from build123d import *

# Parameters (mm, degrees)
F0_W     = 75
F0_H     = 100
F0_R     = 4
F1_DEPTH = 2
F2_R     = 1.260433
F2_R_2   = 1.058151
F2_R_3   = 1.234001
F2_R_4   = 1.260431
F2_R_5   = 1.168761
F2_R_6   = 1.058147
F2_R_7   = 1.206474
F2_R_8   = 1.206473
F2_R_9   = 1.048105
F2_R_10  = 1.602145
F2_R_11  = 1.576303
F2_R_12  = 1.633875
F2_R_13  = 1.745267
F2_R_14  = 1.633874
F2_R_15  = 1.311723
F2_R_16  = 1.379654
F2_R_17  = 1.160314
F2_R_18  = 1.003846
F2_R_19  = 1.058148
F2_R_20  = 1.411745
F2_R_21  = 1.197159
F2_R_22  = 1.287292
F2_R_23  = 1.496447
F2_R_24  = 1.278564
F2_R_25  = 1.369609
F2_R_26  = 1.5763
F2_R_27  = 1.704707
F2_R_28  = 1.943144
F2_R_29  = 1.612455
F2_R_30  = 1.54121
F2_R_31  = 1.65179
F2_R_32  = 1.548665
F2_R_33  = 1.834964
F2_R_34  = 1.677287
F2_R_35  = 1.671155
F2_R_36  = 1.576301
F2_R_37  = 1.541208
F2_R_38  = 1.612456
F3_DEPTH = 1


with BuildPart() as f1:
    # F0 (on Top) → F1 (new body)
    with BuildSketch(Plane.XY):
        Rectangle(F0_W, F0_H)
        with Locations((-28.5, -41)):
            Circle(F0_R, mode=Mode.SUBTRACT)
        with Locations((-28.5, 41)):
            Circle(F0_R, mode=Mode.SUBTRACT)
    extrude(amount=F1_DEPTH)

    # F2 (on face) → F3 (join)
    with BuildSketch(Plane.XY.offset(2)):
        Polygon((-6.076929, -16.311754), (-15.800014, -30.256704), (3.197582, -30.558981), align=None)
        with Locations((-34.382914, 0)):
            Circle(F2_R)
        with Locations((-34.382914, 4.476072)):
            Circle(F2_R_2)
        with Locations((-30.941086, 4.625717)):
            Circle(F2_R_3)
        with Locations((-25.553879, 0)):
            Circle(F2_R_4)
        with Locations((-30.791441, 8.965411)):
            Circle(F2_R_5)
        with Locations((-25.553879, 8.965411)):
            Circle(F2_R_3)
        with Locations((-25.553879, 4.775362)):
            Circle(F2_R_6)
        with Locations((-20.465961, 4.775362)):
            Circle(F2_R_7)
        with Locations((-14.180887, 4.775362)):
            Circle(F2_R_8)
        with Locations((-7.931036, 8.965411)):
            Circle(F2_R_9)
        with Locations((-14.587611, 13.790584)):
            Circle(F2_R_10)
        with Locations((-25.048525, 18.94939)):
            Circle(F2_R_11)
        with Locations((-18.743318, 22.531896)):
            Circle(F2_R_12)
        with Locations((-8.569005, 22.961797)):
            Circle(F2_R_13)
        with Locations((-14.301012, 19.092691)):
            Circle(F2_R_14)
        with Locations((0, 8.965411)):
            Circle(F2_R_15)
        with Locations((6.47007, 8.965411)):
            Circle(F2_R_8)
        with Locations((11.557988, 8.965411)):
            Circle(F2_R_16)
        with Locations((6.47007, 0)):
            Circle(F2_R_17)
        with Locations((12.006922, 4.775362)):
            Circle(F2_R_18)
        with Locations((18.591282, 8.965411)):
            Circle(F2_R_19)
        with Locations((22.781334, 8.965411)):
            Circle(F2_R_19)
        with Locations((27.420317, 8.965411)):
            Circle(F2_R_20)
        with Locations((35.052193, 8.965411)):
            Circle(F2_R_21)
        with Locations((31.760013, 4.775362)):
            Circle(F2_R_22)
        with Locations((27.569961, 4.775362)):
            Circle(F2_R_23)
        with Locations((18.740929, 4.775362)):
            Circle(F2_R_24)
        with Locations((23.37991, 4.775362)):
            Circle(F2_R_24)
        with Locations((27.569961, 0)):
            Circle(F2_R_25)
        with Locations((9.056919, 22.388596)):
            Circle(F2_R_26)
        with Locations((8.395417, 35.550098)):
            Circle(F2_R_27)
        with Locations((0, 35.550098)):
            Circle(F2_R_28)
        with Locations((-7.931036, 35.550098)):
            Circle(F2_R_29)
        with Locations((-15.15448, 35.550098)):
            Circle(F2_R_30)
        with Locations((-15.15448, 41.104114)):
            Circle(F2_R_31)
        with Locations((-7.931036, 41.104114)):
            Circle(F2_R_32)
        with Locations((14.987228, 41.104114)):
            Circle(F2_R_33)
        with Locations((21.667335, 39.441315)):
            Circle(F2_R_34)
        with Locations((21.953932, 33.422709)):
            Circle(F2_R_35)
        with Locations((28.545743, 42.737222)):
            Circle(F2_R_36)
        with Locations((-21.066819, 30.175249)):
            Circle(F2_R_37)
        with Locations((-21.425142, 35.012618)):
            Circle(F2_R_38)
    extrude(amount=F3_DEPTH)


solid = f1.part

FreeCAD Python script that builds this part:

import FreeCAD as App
import Part
import Sketcher

V = App.Vector
Q = App.Units.Quantity

doc = App.newDocument("Part")
body = doc.addObject("PartDesign::Body", "Body")

# Sketch on XY plane
sketch1 = doc.addObject("Sketcher::SketchObject", "Sketch")
body.addObject(sketch1)
sketch1.AttachmentSupport = (doc.XY_Plane, [""])
sketch1.MapMode = "FlatFace"
sketch1.addGeometry([
    Part.LineSegment(V(-37.5, 50, 0), V(-37.5, -50, 0)),  # 0
    Part.LineSegment(V(-37.5, -50, 0), V(37.5, -50, 0)),  # 1
    Part.LineSegment(V(37.5, -50, 0), V(37.5, 50, 0)),  # 2
    Part.LineSegment(V(37.5, 50, 0), V(-37.5, 50, 0)),  # 3
    Part.Circle(V(-28.5, -41, 0), V(0, 0, 1), 4),  # 4
    Part.Circle(V(-28.5, 41, 0), V(0, 0, 1), 4),  # 5
], False)
sketch1.addConstraint([
    Sketcher.Constraint("Coincident", 0, 2, 1, 1),
    Sketcher.Constraint("Coincident", 1, 2, 2, 1),
    Sketcher.Constraint("Coincident", 2, 2, 3, 1),
    Sketcher.Constraint("Coincident", 3, 2, 0, 1),
    Sketcher.Constraint("Vertical", 0),
    Sketcher.Constraint("Horizontal", 1),
    Sketcher.Constraint("Vertical", 2),
    Sketcher.Constraint("Horizontal", 3),
    Sketcher.Constraint("Equal", 4, 5),
    Sketcher.Constraint("Symmetric", 0, 2, 2, 2, -1, 1),
    Sketcher.Constraint("Symmetric", 4, 3, 5, 3, -1),
    Sketcher.Constraint("Diameter", 4, Q("8 mm")),
    Sketcher.Constraint("DistanceX", 1, 1, 1, 2, Q("75 mm")),
    Sketcher.Constraint("DistanceY", 0, 2, 0, 1, Q("100 mm")),
    Sketcher.Constraint("DistanceY", 4, 3, -1, 1, Q("41 mm")),
    Sketcher.Constraint("DistanceX", 0, 2, 4, 3, Q("9 mm")),
])
pad1 = doc.addObject("PartDesign::Pad", "Pad")
body.addObject(pad1)
pad1.Profile = sketch1
pad1.Length = 2

# Sketch on XY plane
sketch2 = doc.addObject("Sketcher::SketchObject", "Sketch001")
body.addObject(sketch2)
sketch2.AttachmentSupport = (doc.XY_Plane, [""])
sketch2.MapMode = "FlatFace"
sketch2.AttachmentOffset = App.Placement(V(0, 0, 2), App.Rotation())
sketch2.addGeometry([
    Part.LineSegment(V(-6.1, -16.3, 0), V(-15.8, -30.3, 0)),  # 0
    Part.LineSegment(V(-15.8, -30.3, 0), V(3.2, -30.6, 0)),  # 1
    Part.LineSegment(V(3.2, -30.6, 0), V(-6.1, -16.3, 0)),  # 2
    Part.Circle(V(-34.4, 0, 0), V(0, 0, 1), 1.3),  # 3
    Part.Circle(V(-34.4, 4.5, 0), V(0, 0, 1), 1.1),  # 4
    Part.Circle(V(-30.9, 4.6, 0), V(0, 0, 1), 1.2),  # 5
    Part.Circle(V(-25.6, 0, 0), V(0, 0, 1), 1.3),  # 6
    Part.Circle(V(-30.8, 9, 0), V(0, 0, 1), 1.2),  # 7
    Part.Circle(V(-25.6, 9, 0), V(0, 0, 1), 1.2),  # 8
    Part.Circle(V(-25.6, 4.8, 0), V(0, 0, 1), 1.1),  # 9
    Part.Circle(V(-20.5, 4.8, 0), V(0, 0, 1), 1.2),  # 10
    Part.Circle(V(-14.2, 4.8, 0), V(0, 0, 1), 1.2),  # 11
    Part.Circle(V(-7.9, 9, 0), V(0, 0, 1), 1),  # 12
    Part.Circle(V(-14.6, 13.8, 0), V(0, 0, 1), 1.6),  # 13
    Part.Circle(V(-25, 18.9, 0), V(0, 0, 1), 1.6),  # 14
    Part.Circle(V(-18.7, 22.5, 0), V(0, 0, 1), 1.6),  # 15
    Part.Circle(V(-8.6, 23, 0), V(0, 0, 1), 1.7),  # 16
    Part.Circle(V(-14.3, 19.1, 0), V(0, 0, 1), 1.6),  # 17
    Part.Circle(V(0, 9, 0), V(0, 0, 1), 1.3),  # 18
    Part.Circle(V(6.5, 9, 0), V(0, 0, 1), 1.2),  # 19
    Part.Circle(V(11.6, 9, 0), V(0, 0, 1), 1.4),  # 20
    Part.Circle(V(6.5, 0, 0), V(0, 0, 1), 1.2),  # 21
    Part.Circle(V(12, 4.8, 0), V(0, 0, 1), 1),  # 22
    Part.Circle(V(18.6, 9, 0), V(0, 0, 1), 1.1),  # 23
    Part.Circle(V(22.8, 9, 0), V(0, 0, 1), 1.1),  # 24
    Part.Circle(V(27.4, 9, 0), V(0, 0, 1), 1.4),  # 25
    Part.Circle(V(35.1, 9, 0), V(0, 0, 1), 1.2),  # 26
    Part.Circle(V(31.8, 4.8, 0), V(0, 0, 1), 1.3),  # 27
    Part.Circle(V(27.6, 4.8, 0), V(0, 0, 1), 1.5),  # 28
    Part.Circle(V(18.7, 4.8, 0), V(0, 0, 1), 1.3),  # 29
    Part.Circle(V(23.4, 4.8, 0), V(0, 0, 1), 1.3),  # 30
    Part.Circle(V(27.6, 0, 0), V(0, 0, 1), 1.4),  # 31
    Part.Circle(V(9.1, 22.4, 0), V(0, 0, 1), 1.6),  # 32
    Part.Circle(V(8.4, 35.6, 0), V(0, 0, 1), 1.7),  # 33
    Part.Circle(V(0, 35.6, 0), V(0, 0, 1), 1.9),  # 34
    Part.Circle(V(-7.9, 35.6, 0), V(0, 0, 1), 1.6),  # 35
    Part.Circle(V(-15.2, 35.6, 0), V(0, 0, 1), 1.5),  # 36
    Part.Circle(V(-15.2, 41.1, 0), V(0, 0, 1), 1.7),  # 37
    Part.Circle(V(-7.9, 41.1, 0), V(0, 0, 1), 1.5),  # 38
    Part.Circle(V(15, 41.1, 0), V(0, 0, 1), 1.8),  # 39
    Part.Circle(V(21.7, 39.4, 0), V(0, 0, 1), 1.7),  # 40
    Part.Circle(V(22, 33.4, 0), V(0, 0, 1), 1.7),  # 41
    Part.Circle(V(28.5, 42.7, 0), V(0, 0, 1), 1.6),  # 42
    Part.Circle(V(-21.1, 30.2, 0), V(0, 0, 1), 1.5),  # 43
    Part.Circle(V(-21.4, 35, 0), V(0, 0, 1), 1.6),  # 44
], False)
sketch2.addConstraint([
    Sketcher.Constraint("Coincident", 0, 2, 1, 1),
    Sketcher.Constraint("Coincident", 1, 2, 2, 1),
    Sketcher.Constraint("Coincident", 2, 2, 0, 1),
    Sketcher.Constraint("Equal", 3, 6),
    Sketcher.Constraint("Equal", 5, 8),
    Sketcher.Constraint("Equal", 10, 11),
    Sketcher.Constraint("Equal", 15, 17),
    Sketcher.Constraint("Equal", 11, 19),
    Sketcher.Constraint("Equal", 9, 23),
    Sketcher.Constraint("Equal", 23, 24),
    Sketcher.Constraint("Equal", 29, 30),
    Sketcher.Constraint("Equal", 32, 42),
    Sketcher.Constraint("Equal", 35, 44),
    Sketcher.Constraint("PointOnObject", 3, 3, -1),
    Sketcher.Constraint("PointOnObject", 6, 3, -1),
    Sketcher.Constraint("PointOnObject", 18, 3, -2),
    Sketcher.Constraint("PointOnObject", 21, 3, -1),
    Sketcher.Constraint("PointOnObject", 31, 3, -1),
    Sketcher.Constraint("PointOnObject", 34, 3, -2),
    Sketcher.Constraint("Horizontal", 7, 3, 8, 3),
    Sketcher.Constraint("Horizontal", 9, 3, 10, 3),
    Sketcher.Constraint("Horizontal", 10, 3, 11, 3),
    Sketcher.Constraint("Horizontal", 8, 3, 12, 3),
    Sketcher.Constraint("Horizontal", 12, 3, 18, 3),
    Sketcher.Constraint("Horizontal", 18, 3, 19, 3),
    Sketcher.Constraint("Horizontal", 19, 3, 20, 3),
    Sketcher.Constraint("Horizontal", 11, 3, 22, 3),
    Sketcher.Constraint("Horizontal", 20, 3, 23, 3),
    Sketcher.Constraint("Horizontal", 23, 3, 24, 3),
    Sketcher.Constraint("Horizontal", 24, 3, 25, 3),
    Sketcher.Constraint("Horizontal", 25, 3, 26, 3),
    Sketcher.Constraint("Horizontal", 22, 3, 27, 3),
    Sketcher.Constraint("Horizontal", 27, 3, 28, 3),
    Sketcher.Constraint("Horizontal", 28, 3, 29, 3),
    Sketcher.Constraint("Horizontal", 29, 3, 30, 3),
    Sketcher.Constraint("Horizontal", 33, 3, 34, 3),
    Sketcher.Constraint("Horizontal", 34, 3, 35, 3),
    Sketcher.Constraint("Horizontal", 35, 3, 36, 3),
    Sketcher.Constraint("Horizontal", 37, 3, 38, 3),
    Sketcher.Constraint("Horizontal", 38, 3, 39, 3),
    Sketcher.Constraint("Vertical", 3, 3, 4, 3),
    Sketcher.Constraint("Vertical", 6, 3, 8, 3),
    Sketcher.Constraint("Vertical", 8, 3, 9, 3),
    Sketcher.Constraint("Vertical", 19, 3, 21, 3),
    Sketcher.Constraint("Vertical", 28, 3, 31, 3),
    Sketcher.Constraint("Vertical", 12, 3, 35, 3),
    Sketcher.Constraint("Vertical", 36, 3, 37, 3),
    Sketcher.Constraint("Vertical", 35, 3, 38, 3),
    Sketcher.Constraint("Equal", 0, 2),
    Sketcher.Constraint("Distance", 0, Q("17 mm")),
    Sketcher.Constraint("Distance", 1, Q("19.000001 mm")),
    Sketcher.Constraint("Diameter", 5, Q("2.468002 mm")),
    Sketcher.Constraint("Diameter", 32, Q("3.1526 mm")),
    Sketcher.Constraint("Diameter", 7, Q("2.337522 mm")),
    Sketcher.Constraint("Diameter", 10, Q("2.412948 mm")),
    Sketcher.Constraint("Diameter", 12, Q("2.09621 mm")),
    Sketcher.Constraint("Diameter", 13, Q("3.20429 mm")),
    Sketcher.Constraint("Diameter", 15, Q("3.26775 mm")),
    Sketcher.Constraint("Diameter", 21, Q("2.320628 mm")),
    Sketcher.Constraint("Diameter", 22, Q("2.007692 mm")),
    Sketcher.Constraint("Diameter", 25, Q("2.82349 mm")),
    Sketcher.Constraint("Diameter", 26, Q("2.394318 mm")),
    Sketcher.Constraint("Diameter", 29, Q("2.557128 mm")),
    Sketcher.Constraint("Diameter", 31, Q("2.739218 mm")),
    Sketcher.Constraint("Diameter", 34, Q("3.886288 mm")),
    Sketcher.Constraint("Diameter", 35, Q("3.22491 mm")),
    Sketcher.Constraint("Diameter", 36, Q("3.08242 mm")),
    Sketcher.Constraint("Diameter", 37, Q("3.30358 mm")),
    Sketcher.Constraint("Diameter", 38, Q("3.09733 mm")),
    Sketcher.Constraint("Diameter", 39, Q("3.669928 mm")),
    Sketcher.Constraint("Diameter", 41, Q("3.34231 mm")),
    Sketcher.Constraint("Diameter", 3, Q("2.520866 mm")),
    Sketcher.Constraint("Diameter", 4, Q("2.116302 mm")),
    Sketcher.Constraint("Diameter", 9, Q("2.116294 mm")),
    Sketcher.Constraint("Diameter", 14, Q("3.152606 mm")),
    Sketcher.Constraint("Diameter", 16, Q("3.490534 mm")),
    Sketcher.Constraint("Diameter", 18, Q("2.623446 mm")),
    Sketcher.Constraint("Diameter", 20, Q("2.759308 mm")),
    Sketcher.Constraint("Diameter", 27, Q("2.574584 mm")),
    Sketcher.Constraint("Diameter", 28, Q("2.992894 mm")),
    Sketcher.Constraint("Diameter", 33, Q("3.409414 mm")),
    Sketcher.Constraint("Diameter", 40, Q("3.354574 mm")),
    Sketcher.Constraint("Diameter", 43, Q("3.082416 mm")),
    Sketcher.Constraint("DistanceX", 2, 2, 21, 3, Q("12.546999 mm")),
    Sketcher.Constraint("DistanceX", 5, 3, 11, 3, Q("16.760199 mm")),
    Sketcher.Constraint("DistanceY", 15, 3, 16, 3, Q("0.429901 mm")),
    Sketcher.Constraint("DistanceX", 13, 3, 17, 3, Q("0.286599 mm")),
    Sketcher.Constraint("DistanceY", 14, 3, 17, 3, Q("0.143301 mm")),
    Sketcher.Constraint("DistanceY", 32, 3, 16, 3, Q("0.573201 mm")),
    Sketcher.Constraint("DistanceY", 32, 3, 33, 3, Q("13.161502 mm")),
    Sketcher.Constraint("DistanceY", 40, 3, 39, 3, Q("1.662799 mm")),
    Sketcher.Constraint("DistanceX", 43, 3, 15, 3, Q("2.323501 mm")),
    Sketcher.Constraint("DistanceX", 3, 3, 0, 2, Q("18.5829 mm")),
    Sketcher.Constraint("DistanceX", 6, 3, -1, 1, Q("25.553879 mm")),
    Sketcher.Constraint("DistanceX", 7, 3, -1, 1, Q("30.791441 mm")),
    Sketcher.Constraint("DistanceY", -1, 1, 7, 3, Q("8.965411 mm")),
    Sketcher.Constraint("DistanceX", 10, 3, -1, 1, Q("20.465961 mm")),
    Sketcher.Constraint("DistanceX", 13, 3, -1, 1, Q("14.587611 mm")),
    Sketcher.Constraint("DistanceY", -1, 1, 14, 3, Q("18.94939 mm")),
    Sketcher.Constraint("DistanceX", -1, 1, 19, 3, Q("6.47007 mm")),
    Sketcher.Constraint("DistanceX", -1, 1, 23, 3, Q("18.591282 mm")),
    Sketcher.Constraint("DistanceX", -1, 1, 28, 3, Q("27.569961 mm")),
    Sketcher.Constraint("DistanceX", -1, 1, 29, 3, Q("18.740929 mm")),
    Sketcher.Constraint("DistanceX", -1, 1, 30, 3, Q("23.37991 mm")),
    Sketcher.Constraint("DistanceX", -1, 1, 32, 3, Q("9.056919 mm")),
    Sketcher.Constraint("DistanceX", 36, 3, -1, 1, Q("15.15448 mm")),
    Sketcher.Constraint("DistanceX", -1, 1, 41, 3, Q("21.953932 mm")),
    Sketcher.Constraint("DistanceY", -1, 1, 41, 3, Q("33.422709 mm")),
    Sketcher.Constraint("DistanceX", 43, 3, -1, 1, Q("21.066819 mm")),
    Sketcher.Constraint("DistanceY", -1, 1, 43, 3, Q("30.175249 mm")),
    Sketcher.Constraint("DistanceY", -1, 1, 44, 3, Q("35.012618 mm")),
    Sketcher.Constraint("DistanceY", 1, 2, -1, 1, Q("30.558981 mm")),
    Sketcher.Constraint("DistanceX", 4, 3, 5, 3, Q("3.441828 mm")),
    Sketcher.Constraint("DistanceY", 4, 3, 7, 3, Q("4.489339 mm")),
    Sketcher.Constraint("DistanceY", 9, 3, 8, 3, Q("4.190049 mm")),
    Sketcher.Constraint("DistanceX", 9, 3, 11, 3, Q("11.372992 mm")),
    Sketcher.Constraint("DistanceX", 11, 3, 12, 3, Q("6.249851 mm")),
    Sketcher.Constraint("DistanceY", 13, 3, 15, 3, Q("8.741312 mm")),
    Sketcher.Constraint("DistanceX", 16, 3, 12, 3, Q("0.637969 mm")),
    Sketcher.Constraint("DistanceX", 14, 3, 16, 3, Q("16.47952 mm")),
    Sketcher.Constraint("DistanceX", 19, 3, 22, 3, Q("5.536852 mm")),
    Sketcher.Constraint("DistanceX", 20, 3, 25, 3, Q("15.862329 mm")),
    Sketcher.Constraint("DistanceX", 24, 3, 26, 3, Q("12.270859 mm")),
    Sketcher.Constraint("DistanceX", 23, 3, 26, 3, Q("16.460911 mm")),
    Sketcher.Constraint("DistanceX", 27, 3, 26, 3, Q("3.29218 mm")),
    Sketcher.Constraint("DistanceX", 20, 3, 29, 3, Q("7.182941 mm")),
    Sketcher.Constraint("DistanceX", 16, 3, 33, 3, Q("16.964422 mm")),
    Sketcher.Constraint("DistanceY", 15, 3, 37, 3, Q("18.572218 mm")),
    Sketcher.Constraint("DistanceX", 33, 3, 39, 3, Q("6.591811 mm")),
    Sketcher.Constraint("DistanceX", 33, 3, 40, 3, Q("13.271918 mm")),
    Sketcher.Constraint("DistanceY", 41, 3, 33, 3, Q("2.127389 mm")),
    Sketcher.Constraint("DistanceX", 40, 3, 42, 3, Q("6.878408 mm")),
    Sketcher.Constraint("DistanceY", -1, 1, 5, 3, Q("4.625717 mm")),
    Sketcher.Constraint("DistanceY", -1, 1, 42, 3, Q("42.737222 mm")),
    Sketcher.Constraint("DistanceX", 44, 3, -1, 1, Q("21.425142 mm")),
])
pad2 = doc.addObject("PartDesign::Pad", "Pad001")
body.addObject(pad2)
pad2.Profile = sketch2
pad2.Length = 1

doc.recompute()
